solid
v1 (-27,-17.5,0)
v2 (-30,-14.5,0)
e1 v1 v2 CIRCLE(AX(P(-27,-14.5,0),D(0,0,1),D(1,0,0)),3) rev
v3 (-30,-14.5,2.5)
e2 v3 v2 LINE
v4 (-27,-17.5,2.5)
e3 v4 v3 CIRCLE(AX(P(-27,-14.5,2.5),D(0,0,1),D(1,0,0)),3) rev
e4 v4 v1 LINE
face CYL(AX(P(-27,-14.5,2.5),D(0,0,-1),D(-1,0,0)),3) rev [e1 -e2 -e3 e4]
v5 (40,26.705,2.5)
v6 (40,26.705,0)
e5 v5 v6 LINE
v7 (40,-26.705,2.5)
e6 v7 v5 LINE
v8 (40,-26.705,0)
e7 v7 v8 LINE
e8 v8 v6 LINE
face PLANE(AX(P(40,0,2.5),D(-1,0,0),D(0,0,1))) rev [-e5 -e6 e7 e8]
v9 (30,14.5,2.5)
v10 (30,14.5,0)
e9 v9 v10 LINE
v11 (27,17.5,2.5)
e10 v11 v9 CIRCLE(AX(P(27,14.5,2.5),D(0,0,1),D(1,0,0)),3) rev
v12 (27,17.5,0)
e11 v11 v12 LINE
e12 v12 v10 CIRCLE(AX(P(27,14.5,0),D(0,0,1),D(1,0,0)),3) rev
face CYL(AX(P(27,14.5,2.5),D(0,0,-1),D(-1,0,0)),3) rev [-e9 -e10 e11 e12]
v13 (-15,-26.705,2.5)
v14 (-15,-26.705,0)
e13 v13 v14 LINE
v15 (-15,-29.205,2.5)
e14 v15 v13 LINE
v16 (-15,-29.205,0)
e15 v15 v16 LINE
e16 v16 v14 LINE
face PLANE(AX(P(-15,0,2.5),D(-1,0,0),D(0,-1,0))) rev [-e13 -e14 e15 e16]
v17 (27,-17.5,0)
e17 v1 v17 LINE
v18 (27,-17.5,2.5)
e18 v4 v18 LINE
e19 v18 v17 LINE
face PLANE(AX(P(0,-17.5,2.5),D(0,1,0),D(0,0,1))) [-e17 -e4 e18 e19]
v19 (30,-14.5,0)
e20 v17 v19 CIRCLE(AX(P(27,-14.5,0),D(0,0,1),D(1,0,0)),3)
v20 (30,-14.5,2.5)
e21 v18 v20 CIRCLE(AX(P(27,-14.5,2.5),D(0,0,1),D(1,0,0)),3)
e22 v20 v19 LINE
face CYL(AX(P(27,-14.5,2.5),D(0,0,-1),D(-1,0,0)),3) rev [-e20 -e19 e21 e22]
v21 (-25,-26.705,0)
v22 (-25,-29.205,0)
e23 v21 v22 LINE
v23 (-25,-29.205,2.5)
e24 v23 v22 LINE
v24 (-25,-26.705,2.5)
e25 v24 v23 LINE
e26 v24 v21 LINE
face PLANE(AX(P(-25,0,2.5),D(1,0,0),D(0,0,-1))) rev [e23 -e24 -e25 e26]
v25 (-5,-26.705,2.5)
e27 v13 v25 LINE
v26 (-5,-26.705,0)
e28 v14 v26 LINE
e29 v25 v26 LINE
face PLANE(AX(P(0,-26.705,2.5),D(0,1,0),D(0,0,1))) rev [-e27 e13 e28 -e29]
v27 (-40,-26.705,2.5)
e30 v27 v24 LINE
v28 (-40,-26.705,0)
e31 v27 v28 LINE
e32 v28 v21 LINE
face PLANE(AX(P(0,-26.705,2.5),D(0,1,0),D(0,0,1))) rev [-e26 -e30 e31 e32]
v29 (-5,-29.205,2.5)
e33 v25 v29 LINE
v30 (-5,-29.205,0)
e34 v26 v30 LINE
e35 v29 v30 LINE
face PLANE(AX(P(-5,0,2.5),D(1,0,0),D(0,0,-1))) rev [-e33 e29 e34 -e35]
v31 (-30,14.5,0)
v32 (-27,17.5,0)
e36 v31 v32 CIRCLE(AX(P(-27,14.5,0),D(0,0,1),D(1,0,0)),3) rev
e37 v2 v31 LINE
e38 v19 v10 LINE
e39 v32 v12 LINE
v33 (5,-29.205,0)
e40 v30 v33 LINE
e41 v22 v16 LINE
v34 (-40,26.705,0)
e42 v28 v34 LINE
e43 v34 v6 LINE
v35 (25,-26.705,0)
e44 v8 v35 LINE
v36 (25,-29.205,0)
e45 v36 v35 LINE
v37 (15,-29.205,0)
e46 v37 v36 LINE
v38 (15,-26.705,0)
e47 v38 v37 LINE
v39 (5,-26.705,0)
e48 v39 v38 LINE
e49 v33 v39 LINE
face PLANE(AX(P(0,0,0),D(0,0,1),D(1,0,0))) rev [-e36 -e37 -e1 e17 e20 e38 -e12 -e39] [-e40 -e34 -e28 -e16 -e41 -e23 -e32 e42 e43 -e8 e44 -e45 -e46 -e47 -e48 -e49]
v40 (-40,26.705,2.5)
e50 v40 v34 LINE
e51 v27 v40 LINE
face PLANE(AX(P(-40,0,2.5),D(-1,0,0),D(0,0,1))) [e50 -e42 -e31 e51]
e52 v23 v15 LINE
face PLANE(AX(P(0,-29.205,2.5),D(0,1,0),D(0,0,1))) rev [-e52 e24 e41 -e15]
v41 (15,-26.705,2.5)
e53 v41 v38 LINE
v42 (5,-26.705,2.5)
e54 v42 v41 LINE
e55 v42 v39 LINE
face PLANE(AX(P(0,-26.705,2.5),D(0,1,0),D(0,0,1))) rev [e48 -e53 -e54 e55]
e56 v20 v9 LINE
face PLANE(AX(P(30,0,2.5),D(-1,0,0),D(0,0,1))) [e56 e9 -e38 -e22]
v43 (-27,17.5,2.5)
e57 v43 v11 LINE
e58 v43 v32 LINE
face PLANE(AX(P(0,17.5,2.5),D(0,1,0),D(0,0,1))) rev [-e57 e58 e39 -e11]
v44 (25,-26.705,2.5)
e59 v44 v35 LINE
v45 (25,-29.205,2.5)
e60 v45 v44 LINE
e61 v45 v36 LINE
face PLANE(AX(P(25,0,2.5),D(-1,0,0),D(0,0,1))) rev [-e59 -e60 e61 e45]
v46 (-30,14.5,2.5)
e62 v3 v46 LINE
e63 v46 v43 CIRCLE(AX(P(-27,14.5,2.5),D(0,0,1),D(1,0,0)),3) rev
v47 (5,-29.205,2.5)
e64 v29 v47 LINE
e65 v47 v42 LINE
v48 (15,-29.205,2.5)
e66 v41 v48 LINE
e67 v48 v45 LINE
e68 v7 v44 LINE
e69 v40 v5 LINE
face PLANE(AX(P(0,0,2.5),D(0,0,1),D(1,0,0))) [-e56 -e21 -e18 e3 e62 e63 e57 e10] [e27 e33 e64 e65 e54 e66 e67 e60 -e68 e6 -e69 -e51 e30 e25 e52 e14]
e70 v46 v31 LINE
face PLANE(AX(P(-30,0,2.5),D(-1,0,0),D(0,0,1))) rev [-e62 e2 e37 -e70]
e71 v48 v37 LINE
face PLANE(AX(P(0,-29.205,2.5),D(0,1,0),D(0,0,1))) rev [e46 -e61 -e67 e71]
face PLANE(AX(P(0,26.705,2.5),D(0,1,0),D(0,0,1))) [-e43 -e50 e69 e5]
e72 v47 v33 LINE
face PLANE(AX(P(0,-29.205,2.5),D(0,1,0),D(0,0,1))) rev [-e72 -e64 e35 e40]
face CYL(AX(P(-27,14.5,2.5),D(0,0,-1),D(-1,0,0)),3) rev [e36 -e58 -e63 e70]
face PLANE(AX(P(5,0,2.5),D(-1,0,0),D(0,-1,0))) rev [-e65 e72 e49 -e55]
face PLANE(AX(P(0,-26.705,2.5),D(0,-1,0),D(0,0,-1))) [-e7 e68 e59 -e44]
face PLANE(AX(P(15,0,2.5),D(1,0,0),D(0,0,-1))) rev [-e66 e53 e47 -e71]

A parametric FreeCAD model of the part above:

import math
import FreeCAD as App
import Part
import Sketcher

V = App.Vector

doc = App.newDocument("Part")
body = doc.addObject("PartDesign::Body", "Body")

# Sketch on XY plane
sketch1 = body.newObject("Sketcher::SketchObject", "Sketch")
sketch1.AttachmentSupport = (doc.getObject("XY_Plane"), [""])
sketch1.MapMode = "FlatFace"
sketch1.addGeometry(Part.LineSegment(V(-40, -26.705, 0), V(-25, -26.705, 0)), False)
sketch1.addGeometry(Part.LineSegment(V(-25, -26.705, 0), V(-25, -29.205, 0)), False)
sketch1.addGeometry(Part.LineSegment(V(-25, -29.205, 0), V(-15, -29.205, 0)), False)
sketch1.addGeometry(Part.LineSegment(V(-15, -29.205, 0), V(-15, -26.705, 0)), False)
sketch1.addGeometry(Part.LineSegment(V(-15, -26.705, 0), V(-5, -26.705, 0)), False)
sketch1.addGeometry(Part.LineSegment(V(-5, -26.705, 0), V(-5, -29.205, 0)), False)
sketch1.addGeometry(Part.LineSegment(V(-5, -29.205, 0), V(5, -29.205, 0)), False)
sketch1.addGeometry(Part.LineSegment(V(5, -29.205, 0), V(5, -26.705, 0)), False)
sketch1.addGeometry(Part.LineSegment(V(5, -26.705, 0), V(15, -26.705, 0)), False)
sketch1.addGeometry(Part.LineSegment(V(15, -26.705, 0), V(15, -29.205, 0)), False)
sketch1.addGeometry(Part.LineSegment(V(15, -29.205, 0), V(25, -29.205, 0)), False)
sketch1.addGeometry(Part.LineSegment(V(25, -29.205, 0), V(25, -26.705, 0)), False)
sketch1.addGeometry(Part.LineSegment(V(25, -26.705, 0), V(40, -26.705, 0)), False)
sketch1.addGeometry(Part.LineSegment(V(40, -26.705, 0), V(40, 26.705, 0)), False)
sketch1.addGeometry(Part.LineSegment(V(40, 26.705, 0), V(-40, 26.705, 0)), False)
sketch1.addGeometry(Part.LineSegment(V(-40, 26.705, 0), V(-40, -26.705, 0)), False)
sketch1.addGeometry(Part.LineSegment(V(27, -17.5, 0), V(-27, -17.5, 0)), False)
sketch1.addGeometry(Part.ArcOfCircle(Part.Circle(V(-27, -14.5, 0), V(0, 0, 1), 3), math.radians(180), math.radians(270)), False)
sketch1.addGeometry(Part.LineSegment(V(-30, -14.5, 0), V(-30, 14.5, 0)), False)
sketch1.addGeometry(Part.ArcOfCircle(Part.Circle(V(-27, 14.5, 0), V(0, 0, 1), 3), math.radians(90), math.radians(180)), False)
sketch1.addGeometry(Part.LineSegment(V(-27, 17.5, 0), V(27, 17.5, 0)), False)
sketch1.addGeometry(Part.ArcOfCircle(Part.Circle(V(27, 14.5, 0), V(0, 0, 1), 3), math.radians(0), math.radians(90)), False)
sketch1.addGeometry(Part.LineSegment(V(30, 14.5, 0), V(30, -14.5, 0)), False)
sketch1.addGeometry(Part.ArcOfCircle(Part.Circle(V(27, -14.5, 0), V(0, 0, 1), 3), math.radians(-90), math.radians(0)), False)
sketch1.addConstraint(Sketcher.Constraint("Coincident", 0, 2, 1, 1))
sketch1.addConstraint(Sketcher.Constraint("Coincident", 1, 2, 2, 1))
sketch1.addConstraint(Sketcher.Constraint("Coincident", 2, 2, 3, 1))
sketch1.addConstraint(Sketcher.Constraint("Coincident", 3, 2, 4, 1))
sketch1.addConstraint(Sketcher.Constraint("Coincident", 4, 2, 5, 1))
sketch1.addConstraint(Sketcher.Constraint("Coincident", 5, 2, 6, 1))
sketch1.addConstraint(Sketcher.Constraint("Coincident", 6, 2, 7, 1))
sketch1.addConstraint(Sketcher.Constraint("Coincident", 7, 2, 8, 1))
sketch1.addConstraint(Sketcher.Constraint("Coincident", 8, 2, 9, 1))
sketch1.addConstraint(Sketcher.Constraint("Coincident", 9, 2, 10, 1))
sketch1.addConstraint(Sketcher.Constraint("Coincident", 10, 2, 11, 1))
sketch1.addConstraint(Sketcher.Constraint("Coincident", 11, 2, 12, 1))
sketch1.addConstraint(Sketcher.Constraint("Coincident", 12, 2, 13, 1))
sketch1.addConstraint(Sketcher.Constraint("Coincident", 13, 2, 14, 1))
sketch1.addConstraint(Sketcher.Constraint("Coincident", 14, 2, 15, 1))
sketch1.addConstraint(Sketcher.Constraint("Coincident", 15, 2, 0, 1))
sketch1.addConstraint(Sketcher.Constraint("Tangent", 16, 2, 17, 2))
sketch1.addConstraint(Sketcher.Constraint("Tangent", 17, 1, 18, 1))
sketch1.addConstraint(Sketcher.Constraint("Tangent", 18, 2, 19, 2))
sketch1.addConstraint(Sketcher.Constraint("Tangent", 19, 1, 20, 1))
sketch1.addConstraint(Sketcher.Constraint("Tangent", 20, 2, 21, 2))
sketch1.addConstraint(Sketcher.Constraint("Tangent", 21, 1, 22, 1))
sketch1.addConstraint(Sketcher.Constraint("Tangent", 22, 2, 23, 2))
sketch1.addConstraint(Sketcher.Constraint("Tangent", 23, 1, 16, 1))
sketch1.addConstraint(Sketcher.Constraint("Horizontal", 0))
sketch1.addConstraint(Sketcher.Constraint("Vertical", 1))
sketch1.addConstraint(Sketcher.Constraint("Horizontal", 2))
sketch1.addConstraint(Sketcher.Constraint("Vertical", 3))
sketch1.addConstraint(Sketcher.Constraint("Horizontal", 4))
sketch1.addConstraint(Sketcher.Constraint("Vertical", 5))
sketch1.addConstraint(Sketcher.Constraint("Horizontal", 6))
sketch1.addConstraint(Sketcher.Constraint("Vertical", 7))
sketch1.addConstraint(Sketcher.Constraint("Horizontal", 8))
sketch1.addConstraint(Sketcher.Constraint("Vertical", 9))
sketch1.addConstraint(Sketcher.Constraint("Horizontal", 10))
sketch1.addConstraint(Sketcher.Constraint("Vertical", 11))
sketch1.addConstraint(Sketcher.Constraint("Horizontal", 12))
sketch1.addConstraint(Sketcher.Constraint("Vertical", 13))
sketch1.addConstraint(Sketcher.Constraint("Horizontal", 14))
sketch1.addConstraint(Sketcher.Constraint("Vertical", 15))
sketch1.addConstraint(Sketcher.Constraint("Horizontal", 16))
sketch1.addConstraint(Sketcher.Constraint("Vertical", 18))
sketch1.addConstraint(Sketcher.Constraint("Horizontal", 20))
sketch1.addConstraint(Sketcher.Constraint("Vertical", 22))
sketch1.addConstraint(Sketcher.Constraint("Equal", 17, 19))
sketch1.addConstraint(Sketcher.Constraint("Equal", 19, 21))
sketch1.addConstraint(Sketcher.Constraint("Equal", 21, 23))
sketch1.addConstraint(Sketcher.Constraint("Symmetric", 17, 3, 21, 3, -1, 1))
sketch1.addConstraint(Sketcher.Constraint("Symmetric", 12, 2, 14, 2, -1, 1))
sketch1.addConstraint(Sketcher.Constraint("Symmetric", 4, 2, 7, 2, -2))
sketch1.addConstraint(Sketcher.Constraint("Symmetric", 2, 2, 9, 2, -2))
sketch1.addConstraint(Sketcher.Constraint("Symmetric", 0, 2, 11, 2, -2))
sketch1.addConstraint(Sketcher.Constraint("Horizontal", 0, 2, 3, 2))
sketch1.addConstraint(Sketcher.Constraint("Horizontal", 2, 2, 5, 2))
sketch1.addConstraint(Sketcher.Constraint("Equal", 2, 4))
sketch1.addConstraint(Sketcher.Constraint("Equal", 4, 6))
sketch1.addConstraint(Sketcher.Constraint("Radius", 17, 3.0))
sketch1.addConstraint(Sketcher.Constraint("DistanceX", 0, 1, 0, 2, 15.0))
sketch1.addConstraint(Sketcher.Constraint("DistanceX", 2, 1, 2, 2, 10.0))
sketch1.addConstraint(Sketcher.Constraint("DistanceX", 16, 2, 16, 1, 54.0))
sketch1.addConstraint(Sketcher.Constraint("DistanceY", 18, 1, 18, 2, 29.0))
sketch1.addConstraint(Sketcher.Constraint("DistanceY", 1, 2, 1, 1, 2.5))
sketch1.addConstraint(Sketcher.Constraint("DistanceY", 13, 1, 13, 2, 53.41))
pad1 = body.newObject("PartDesign::Pad", "Pad")
pad1.Profile = sketch1
pad1.Length = 2.5

doc.recompute()
